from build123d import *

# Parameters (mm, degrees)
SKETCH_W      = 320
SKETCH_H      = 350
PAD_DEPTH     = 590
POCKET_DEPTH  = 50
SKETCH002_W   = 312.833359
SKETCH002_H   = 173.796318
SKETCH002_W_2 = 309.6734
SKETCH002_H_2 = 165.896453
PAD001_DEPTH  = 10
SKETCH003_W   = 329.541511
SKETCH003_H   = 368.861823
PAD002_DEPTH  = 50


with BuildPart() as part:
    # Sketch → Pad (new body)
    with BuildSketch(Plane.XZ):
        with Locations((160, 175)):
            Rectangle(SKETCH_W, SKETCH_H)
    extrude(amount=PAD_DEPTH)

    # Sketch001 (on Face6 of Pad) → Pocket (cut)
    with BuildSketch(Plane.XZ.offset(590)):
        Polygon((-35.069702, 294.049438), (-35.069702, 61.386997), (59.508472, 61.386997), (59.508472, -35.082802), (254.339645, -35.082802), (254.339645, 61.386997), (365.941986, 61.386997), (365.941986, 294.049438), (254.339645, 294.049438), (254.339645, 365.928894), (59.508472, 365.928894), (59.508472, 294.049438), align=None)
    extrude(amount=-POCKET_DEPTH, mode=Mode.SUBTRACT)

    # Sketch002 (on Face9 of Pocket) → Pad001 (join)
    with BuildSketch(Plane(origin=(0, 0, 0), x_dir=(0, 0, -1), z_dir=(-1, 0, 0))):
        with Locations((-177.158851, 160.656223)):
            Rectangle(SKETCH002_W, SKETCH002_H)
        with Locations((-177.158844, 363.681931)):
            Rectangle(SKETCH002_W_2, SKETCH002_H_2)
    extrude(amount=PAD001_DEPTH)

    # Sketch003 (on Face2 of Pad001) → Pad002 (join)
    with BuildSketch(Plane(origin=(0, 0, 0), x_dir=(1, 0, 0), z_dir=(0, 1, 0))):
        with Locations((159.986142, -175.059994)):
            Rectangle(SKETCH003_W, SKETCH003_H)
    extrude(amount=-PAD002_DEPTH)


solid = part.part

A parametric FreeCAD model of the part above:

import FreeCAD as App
import Part
import Sketcher

doc = App.newDocument("Part")
params = doc.addObject("Spreadsheet::Sheet", "Params")
for row, (alias, value) in enumerate([
    ("sketch1_width", "320 mm"),
    ("sketch1_height", "350 mm"),
    ("pad1_length", "590 mm"),
    ("pocket1_length", "50 mm"),
    ("pad2_length", "10 mm"),
    ("pad3_length", "50 mm"),
], start=1):
    params.set(f"A{row}", alias)
    params.set(f"B{row}", "=" + value)
    params.setAlias(f"B{row}", alias)

body = doc.addObject("PartDesign::Body", "Body")

# Sketch on XZ plane
sketch1 = body.newObject("Sketcher::SketchObject", "Sketch")
sketch1.AttachmentSupport = (doc.getObject("XZ_Plane"), [""])
sketch1.MapMode = "FlatFace"
sketch1.addGeometry(Part.LineSegment(App.Vector(0, 350, 0), App.Vector(0, 0, 0)), False)
sketch1.addGeometry(Part.LineSegment(App.Vector(0, 0, 0), App.Vector(320, 0, 0)), False)
sketch1.addGeometry(Part.LineSegment(App.Vector(320, 0, 0), App.Vector(320, 350, 0)), False)
sketch1.addGeometry(Part.LineSegment(App.Vector(320, 350, 0), App.Vector(0, 350, 0)), False)
sketch1.addConstraint(Sketcher.Constraint("Coincident", 0, 2, 1, 1))
sketch1.addConstraint(Sketcher.Constraint("Coincident", 1, 2, 2, 1))
sketch1.addConstraint(Sketcher.Constraint("Coincident", 2, 2, 3, 1))
sketch1.addConstraint(Sketcher.Constraint("Coincident", 3, 2, 0, 1))
sketch1.addConstraint(Sketcher.Constraint("Vertical", 0))
sketch1.addConstraint(Sketcher.Constraint("Horizontal", 1))
sketch1.addConstraint(Sketcher.Constraint("Vertical", 2))
sketch1.addConstraint(Sketcher.Constraint("Horizontal", 3))
sketch1.addConstraint(Sketcher.Constraint("Coincident", 0, 2, -1, 1))
sketch1.addConstraint(Sketcher.Constraint("DistanceX", 1, 1, 1, 2, 320.0))
sketch1.addConstraint(Sketcher.Constraint("DistanceY", 0, 2, 0, 1, 350.0))
sketch1.setExpression("Constraints[9]", "Params.sketch1_width")
sketch1.setExpression("Constraints[10]", "Params.sketch1_height")
pad1 = body.newObject("PartDesign::Pad", "Pad")
pad1.Profile = sketch1
pad1.setExpression("Length", "Params.pad1_length")

# Sketch on XZ plane
sketch2 = body.newObject("Sketcher::SketchObject", "Sketch001")
sketch2.AttachmentSupport = (doc.getObject("XZ_Plane"), [""])
sketch2.MapMode = "FlatFace"
sketch2.AttachmentOffset = App.Placement(App.Vector(0, 0, 590), App.Rotation())
sketch2.addGeometry(Part.LineSegment(App.Vector(-35.069702, 294.049438, 0), App.Vector(-35.069702, 61.386997, 0)), False)
sketch2.addGeometry(Part.LineSegment(App.Vector(-35.069702, 61.386997, 0), App.Vector(59.508472, 61.386997, 0)), False)
sketch2.addGeometry(Part.LineSegment(App.Vector(59.508472, 61.386997, 0), App.Vector(59.508472, -35.082802, 0)), False)
sketch2.addGeometry(Part.LineSegment(App.Vector(59.508472, -35.082802, 0), App.Vector(254.339645, -35.082802, 0)), False)
sketch2.addGeometry(Part.LineSegment(App.Vector(254.339645, -35.082802, 0), App.Vector(254.339645, 61.386997, 0)), False)
sketch2.addGeometry(Part.LineSegment(App.Vector(254.339645, 61.386997, 0), App.Vector(365.941986, 61.386997, 0)), False)
sketch2.addGeometry(Part.LineSegment(App.Vector(365.941986, 61.386997, 0), App.Vector(365.941986, 294.049438, 0)), False)
sketch2.addGeometry(Part.LineSegment(App.Vector(365.941986, 294.049438, 0), App.Vector(254.339645, 294.049438, 0)), False)
sketch2.addGeometry(Part.LineSegment(App.Vector(254.339645, 294.049438, 0), App.Vector(254.339645, 365.928894, 0)), False)
sketch2.addGeometry(Part.LineSegment(App.Vector(254.339645, 365.928894, 0), App.Vector(59.508472, 365.928894, 0)), False)
sketch2.addGeometry(Part.LineSegment(App.Vector(59.508472, 365.928894, 0), App.Vector(59.508472, 294.049438, 0)), False)
sketch2.addGeometry(Part.LineSegment(App.Vector(59.508472, 294.049438, 0), App.Vector(-35.069702, 294.049438, 0)), False)
sketch2.addConstraint(Sketcher.Constraint("Coincident", 0, 2, 1, 1))
sketch2.addConstraint(Sketcher.Constraint("Coincident", 1, 2, 2, 1))
sketch2.addConstraint(Sketcher.Constraint("Coincident", 2, 2, 3, 1))
sketch2.addConstraint(Sketcher.Constraint("Coincident", 3, 2, 4, 1))
sketch2.addConstraint(Sketcher.Constraint("Coincident", 4, 2, 5, 1))
sketch2.addConstraint(Sketcher.Constraint("Coincident", 5, 2, 6, 1))
sketch2.addConstraint(Sketcher.Constraint("Coincident", 6, 2, 7, 1))
sketch2.addConstraint(Sketcher.Constraint("Coincident", 7, 2, 8, 1))
sketch2.addConstraint(Sketcher.Constraint("Coincident", 8, 2, 9, 1))
sketch2.addConstraint(Sketcher.Constraint("Coincident", 9, 2, 10, 1))
sketch2.addConstraint(Sketcher.Constraint("Coincident", 10, 2, 11, 1))
sketch2.addConstraint(Sketcher.Constraint("Coincident", 11, 2, 0, 1))
sketch2.addConstraint(Sketcher.Constraint("Vertical", 0))
sketch2.addConstraint(Sketcher.Constraint("Horizontal", 1))
sketch2.addConstraint(Sketcher.Constraint("Vertical", 2))
sketch2.addConstraint(Sketcher.Constraint("Horizontal", 3))
sketch2.addConstraint(Sketcher.Constraint("Vertical", 4))
sketch2.addConstraint(Sketcher.Constraint("Horizontal", 5))
sketch2.addConstraint(Sketcher.Constraint("Vertical", 6))
sketch2.addConstraint(Sketcher.Constraint("Horizontal", 7))
sketch2.addConstraint(Sketcher.Constraint("Vertical", 8))
sketch2.addConstraint(Sketcher.Constraint("Horizontal", 9))
sketch2.addConstraint(Sketcher.Constraint("Vertical", 10))
sketch2.addConstraint(Sketcher.Constraint("Horizontal", 11))
sketch2.addConstraint(Sketcher.Constraint("Horizontal", 1, 2, 4, 2))
sketch2.addConstraint(Sketcher.Constraint("Horizontal", 7, 2, 10, 2))
sketch2.addConstraint(Sketcher.Constraint("Vertical", 4, 2, 7, 2))
sketch2.addConstraint(Sketcher.Constraint("Vertical", 2, 2, 9, 2))
sketch2.addConstraint(Sketcher.Constraint("DistanceY", 2, 2, 2, 1, 96.469799))
sketch2.addConstraint(Sketcher.Constraint("DistanceX", 5, 1, 5, 2, 111.602341))
sketch2.addConstraint(Sketcher.Constraint("DistanceY", 0, 2, 0, 1, 232.662441))
sketch2.addConstraint(Sketcher.Constraint("DistanceX", 1, 1, 1, 2, 94.578174))
sketch2.addConstraint(Sketcher.Constraint("DistanceX", 3, 1, 3, 2, 194.831173))
sketch2.addConstraint(Sketcher.Constraint("DistanceY", 8, 1, 8, 2, 71.879456))
sketch2.addConstraint(Sketcher.Constraint("DistanceX", -1, 1, 1, 2, 59.508472))
sketch2.addConstraint(Sketcher.Constraint("DistanceY", -1, 1, 6, 2, 294.049438))
pocket1 = body.newObject("PartDesign::Pocket", "Pocket")
pocket1.Profile = sketch2
pocket1.setExpression("Length", "Params.pocket1_length")

# Sketch on YZ plane
sketch3 = body.newObject("Sketcher::SketchObject", "Sketch002")
sketch3.AttachmentSupport = (doc.getObject("YZ_Plane"), [""])
sketch3.MapMode = "FlatFace"
sketch3.addGeometry(Part.LineSegment(App.Vector(-247.554382, 333.575531, 0), App.Vector(-73.758064, 333.575531, 0)), False)
sketch3.addGeometry(Part.LineSegment(App.Vector(-73.758064, 333.575531, 0), App.Vector(-73.758064, 20.742172, 0)), False)
sketch3.addGeometry(Part.LineSegment(App.Vector(-73.758064, 20.742172, 0), App.Vector(-247.554382, 20.742172, 0)), False)
sketch3.addGeometry(Part.LineSegment(App.Vector(-247.554382, 20.742172, 0), App.Vector(-247.554382, 333.575531, 0)), False)
sketch3.addGeometry(Part.LineSegment(App.Vector(-446.630157, 331.995544, 0), App.Vector(-280.733704, 331.995544, 0)), False)
sketch3.addGeometry(Part.LineSegment(App.Vector(-280.733704, 331.995544, 0), App.Vector(-280.733704, 22.322144, 0)), False)
sketch3.addGeometry(Part.LineSegment(App.Vector(-280.733704, 22.322144, 0), App.Vector(-446.630157, 22.322144, 0)), False)
sketch3.addGeometry(Part.LineSegment(App.Vector(-446.630157, 22.322144, 0), App.Vector(-446.630157, 331.995544, 0)), False)
sketch3.addConstraint(Sketcher.Constraint("Coincident", 0, 2, 1, 1))
sketch3.addConstraint(Sketcher.Constraint("Coincident", 1, 2, 2, 1))
sketch3.addConstraint(Sketcher.Constraint("Coincident", 2, 2, 3, 1))
sketch3.addConstraint(Sketcher.Constraint("Coincident", 3, 2, 0, 1))
sketch3.addConstraint(Sketcher.Constraint("Coincident", 4, 2, 5, 1))
sketch3.addConstraint(Sketcher.Constraint("Coincident", 5, 2, 6, 1))
sketch3.addConstraint(Sketcher.Constraint("Coincident", 6, 2, 7, 1))
sketch3.addConstraint(Sketcher.Constraint("Coincident", 7, 2, 4, 1))
sketch3.addConstraint(Sketcher.Constraint("Horizontal", 0))
sketch3.addConstraint(Sketcher.Constraint("Vertical", 1))
sketch3.addConstraint(Sketcher.Constraint("Horizontal", 2))
sketch3.addConstraint(Sketcher.Constraint("Vertical", 3))
sketch3.addConstraint(Sketcher.Constraint("Horizontal", 4))
sketch3.addConstraint(Sketcher.Constraint("Vertical", 5))
sketch3.addConstraint(Sketcher.Constraint("Horizontal", 6))
sketch3.addConstraint(Sketcher.Constraint("Vertical", 7))
sketch3.addConstraint(Sketcher.Constraint("DistanceY", 5, 2, 5, 1, 309.6734))
sketch3.addConstraint(Sketcher.Constraint("DistanceY", 1, 2, 1, 1, 312.833359))
sketch3.addConstraint(Sketcher.Constraint("DistanceX", 0, 1, 0, 2, 173.796318))
sketch3.addConstraint(Sketcher.Constraint("DistanceX", 4, 1, 4, 2, 165.896453))
sketch3.addConstraint(Sketcher.Constraint("DistanceY", -1, 1, 0, 2, 333.575531))
sketch3.addConstraint(Sketcher.Constraint("DistanceX", 2, 2, -1, 1, 247.554382))
sketch3.addConstraint(Sketcher.Constraint("DistanceX", 4, 2, 0, 2, 206.97564))
sketch3.addConstraint(Sketcher.Constraint("DistanceY", -1, 1, 4, 2, 331.995544))
pad2 = body.newObject("PartDesign::Pad", "Pad001")
pad2.Profile = sketch3
pad2.setExpression("Length", "Params.pad2_length")
pad2.Reversed = True

# Sketch on XZ plane
sketch4 = body.newObject("Sketcher::SketchObject", "Sketch003")
sketch4.AttachmentSupport = (doc.getObject("XZ_Plane"), [""])
sketch4.MapMode = "FlatFace"
sketch4.addGeometry(Part.LineSegment(App.Vector(-4.784613, -9.370917, 0), App.Vector(-4.784613, 359.490905, 0)), False)
sketch4.addGeometry(Part.LineSegment(App.Vector(-4.784613, 359.490905, 0), App.Vector(324.756897, 359.490905, 0)), False)
sketch4.addGeometry(Part.LineSegment(App.Vector(324.756897, 359.490905, 0), App.Vector(324.756897, -9.370917, 0)), False)
sketch4.addGeometry(Part.LineSegment(App.Vector(324.756897, -9.370917, 0), App.Vector(-4.784613, -9.370917, 0)), False)
sketch4.addConstraint(Sketcher.Constraint("Coincident", 0, 2, 1, 1))
sketch4.addConstraint(Sketcher.Constraint("Coincident", 1, 2, 2, 1))
sketch4.addConstraint(Sketcher.Constraint("Coincident", 2, 2, 3, 1))
sketch4.addConstraint(Sketcher.Constraint("Coincident", 3, 2, 0, 1))
sketch4.addConstraint(Sketcher.Constraint("Vertical", 0))
sketch4.addConstraint(Sketcher.Constraint("Horizontal", 1))
sketch4.addConstraint(Sketcher.Constraint("Vertical", 2))
sketch4.addConstraint(Sketcher.Constraint("Horizontal", 3))
sketch4.addConstraint(Sketcher.Constraint("DistanceX", 1, 1, 1, 2, 329.541511))
sketch4.addConstraint(Sketcher.Constraint("DistanceY", 0, 1, 0, 2, 368.861823))
sketch4.addConstraint(Sketcher.Constraint("DistanceX", 0, 2, -1, 1, 4.784613))
sketch4.addConstraint(Sketcher.Constraint("DistanceY", -1, 1, 0, 2, 359.490905))
pad3 = body.newObject("PartDesign::Pad", "Pad002")
pad3.Profile = sketch4
pad3.setExpression("Length", "Params.pad3_length")

doc.recompute()
